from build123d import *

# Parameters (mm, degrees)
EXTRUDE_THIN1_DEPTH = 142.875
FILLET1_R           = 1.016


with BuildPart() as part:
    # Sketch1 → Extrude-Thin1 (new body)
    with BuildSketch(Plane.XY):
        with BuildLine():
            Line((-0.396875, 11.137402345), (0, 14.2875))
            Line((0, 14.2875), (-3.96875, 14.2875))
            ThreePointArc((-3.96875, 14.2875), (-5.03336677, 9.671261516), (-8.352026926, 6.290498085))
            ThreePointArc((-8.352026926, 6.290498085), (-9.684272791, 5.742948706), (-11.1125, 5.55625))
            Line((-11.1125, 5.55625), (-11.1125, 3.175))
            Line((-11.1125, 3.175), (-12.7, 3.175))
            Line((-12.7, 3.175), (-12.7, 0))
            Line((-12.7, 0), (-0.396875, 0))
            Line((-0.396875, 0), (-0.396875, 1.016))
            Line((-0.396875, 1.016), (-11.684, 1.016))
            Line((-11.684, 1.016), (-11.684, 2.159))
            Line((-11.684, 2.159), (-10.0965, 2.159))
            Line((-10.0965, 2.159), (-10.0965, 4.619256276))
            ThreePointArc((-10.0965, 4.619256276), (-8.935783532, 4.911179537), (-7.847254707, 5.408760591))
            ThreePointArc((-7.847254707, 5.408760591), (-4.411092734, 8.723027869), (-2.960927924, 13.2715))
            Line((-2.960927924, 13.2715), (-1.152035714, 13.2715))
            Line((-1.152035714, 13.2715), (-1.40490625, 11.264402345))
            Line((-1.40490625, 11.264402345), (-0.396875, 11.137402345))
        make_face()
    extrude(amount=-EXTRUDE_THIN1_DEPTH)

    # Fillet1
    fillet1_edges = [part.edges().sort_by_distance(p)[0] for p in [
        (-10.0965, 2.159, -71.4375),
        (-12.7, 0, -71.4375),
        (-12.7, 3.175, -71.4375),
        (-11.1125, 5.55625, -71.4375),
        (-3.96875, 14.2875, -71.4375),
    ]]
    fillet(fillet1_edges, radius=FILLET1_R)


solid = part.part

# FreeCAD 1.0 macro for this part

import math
import FreeCAD as App
import Part
import Sketcher
Q = App.Units.Quantity


def edges_at(feature, points):
    """Names of the edges that pass closest to the given points."""
    edges = feature.Shape.Edges
    near = lambda p: min(range(len(edges)), key=lambda i: edges[i].distToShape(Part.Vertex(*p))[0])
    return sorted({f"Edge{near(p) + 1}" for p in points})

doc = App.newDocument("Part")
body = doc.addObject("PartDesign::Body", "Body")

sketch1 = body.newObject("Sketcher::SketchObject", "Sketch")
sketch1.AttachmentSupport = (doc.getObject("XY_Plane"), [""])
sketch1.MapMode = "FlatFace"
sketch1.addGeometry([
    Part.LineSegment(App.Vector(-0.4, 11.1, 0), App.Vector(0, 14.3, 0)),
    Part.LineSegment(App.Vector(0, 14.3, 0), App.Vector(-4, 14.3, 0)),
    Part.ArcOfCircle(Part.Circle(App.Vector(-12.7, 13.9, 0), App.Vector(0, 0, 1), 8.7), math.radians(-60), math.radians(3)),
    Part.ArcOfCircle(Part.Circle(App.Vector(-11.1, 11.1, 0), App.Vector(0, 0, 1), 5.6), math.radians(-90), math.radians(-60)),
    Part.LineSegment(App.Vector(-11.1, 5.6, 0), App.Vector(-11.1, 3.2, 0)),
    Part.LineSegment(App.Vector(-11.1, 3.2, 0), App.Vector(-12.7, 3.2, 0)),
    Part.LineSegment(App.Vector(-12.7, 3.2, 0), App.Vector(-12.7, 0, 0)),
    Part.LineSegment(App.Vector(-12.7, 0, 0), App.Vector(-0.4, 0, 0)),
    Part.LineSegment(App.Vector(-0.4, 0, 0), App.Vector(-0.4, 1, 0)),
    Part.LineSegment(App.Vector(-0.4, 1, 0), App.Vector(-11.7, 1, 0)),
    Part.LineSegment(App.Vector(-11.7, 1, 0), App.Vector(-11.7, 2.2, 0)),
    Part.LineSegment(App.Vector(-11.7, 2.2, 0), App.Vector(-10.1, 2.2, 0)),
    Part.LineSegment(App.Vector(-10.1, 2.2, 0), App.Vector(-10.1, 4.6, 0)),
    Part.ArcOfCircle(Part.Circle(App.Vector(-11.1, 11.1, 0), App.Vector(0, 0, 1), 6.6), math.radians(-81), math.radians(-60)),
    Part.ArcOfCircle(Part.Circle(App.Vector(-12.7, 13.9, 0), App.Vector(0, 0, 1), 9.7), math.radians(-60), math.radians(-4)),
    Part.LineSegment(App.Vector(-3, 13.3, 0), App.Vector(-1.2, 13.3, 0)),
    Part.LineSegment(App.Vector(-1.2, 13.3, 0), App.Vector(-1.4, 11.3, 0)),
    Part.LineSegment(App.Vector(-1.4, 11.3, 0), App.Vector(-0.4, 11.1, 0)),
], False)
sketch1.addConstraint([
    Sketcher.Constraint("Coincident", 0, 2, 1, 1),
    Sketcher.Constraint("Coincident", 1, 2, 2, 2),
    Sketcher.Constraint("Tangent", 2, 1, 3, 2),
    Sketcher.Constraint("Coincident", 3, 1, 4, 1),
    Sketcher.Constraint("Coincident", 4, 2, 5, 1),
    Sketcher.Constraint("Coincident", 5, 2, 6, 1),
    Sketcher.Constraint("Coincident", 6, 2, 7, 1),
    Sketcher.Constraint("Coincident", 7, 2, 8, 1),
    Sketcher.Constraint("Coincident", 8, 2, 9, 1),
    Sketcher.Constraint("Coincident", 9, 2, 10, 1),
    Sketcher.Constraint("Coincident", 10, 2, 11, 1),
    Sketcher.Constraint("Coincident", 11, 2, 12, 1),
    Sketcher.Constraint("Coincident", 12, 2, 13, 1),
    Sketcher.Constraint("Tangent", 13, 2, 14, 1),
    Sketcher.Constraint("Coincident", 14, 2, 15, 1),
    Sketcher.Constraint("Coincident", 15, 2, 16, 1),
    Sketcher.Constraint("Coincident", 16, 2, 17, 1),
    Sketcher.Constraint("Coincident", 17, 2, 0, 1),
    Sketcher.Constraint("Horizontal", 1),
    Sketcher.Constraint("Vertical", 4),
    Sketcher.Constraint("Horizontal", 5),
    Sketcher.Constraint("Vertical", 6),
    Sketcher.Constraint("Horizontal", 7),
    Sketcher.Constraint("Vertical", 8),
    Sketcher.Constraint("Horizontal", 9),
    Sketcher.Constraint("Vertical", 10),
    Sketcher.Constraint("Horizontal", 11),
    Sketcher.Constraint("Vertical", 12),
    Sketcher.Constraint("Horizontal", 15),
    Sketcher.Constraint("Coincident", 13, 3, 3, 3),
    Sketcher.Constraint("Coincident", 14, 3, 2, 3),
    Sketcher.Constraint("PointOnObject", 0, 2, -2),
    Sketcher.Constraint("PointOnObject", 6, 2, -1),
    Sketcher.Constraint("Parallel", 0, 16),
    Sketcher.Constraint("Perpendicular", 16, 17),
    Sketcher.Constraint("Vertical", 13, 3, 3, 1),
    Sketcher.Constraint("Vertical", 8, 2, 17, 2),
    Sketcher.Constraint("Equal", 5, 11),
    Sketcher.Constraint("Radius", 2, Q("0.34375 in")),
    Sketcher.Constraint("Radius", 3, Q("0.21875 in")),
    Sketcher.Constraint("DistanceY", 8, 1, 8, 2, Q("0.04 in")),
    Sketcher.Constraint("DistanceX", 5, 2, -1, 1, Q("0.5 in")),
    Sketcher.Constraint("Distance", 17, Q("0.04 in")),
    Sketcher.Constraint("DistanceX", 1, 2, 1, 1, Q("0.15625 in")),
    Sketcher.Constraint("DistanceX", 5, 2, 5, 1, Q("0.0625 in")),
    Sketcher.Constraint("DistanceX", 7, 1, 7, 2, Q("0.484375 in")),
    Sketcher.Constraint("DistanceY", 4, 2, 4, 1, Q("0.09375 in")),
    Sketcher.Constraint("DistanceY", 6, 2, 6, 1, Q("0.125 in")),
    Sketcher.Constraint("DistanceY", 10, 1, 10, 2, Q("0.045 in")),
    Sketcher.Constraint("DistanceX", 9, 2, -1, 1, Q("0.46 in")),
    Sketcher.Constraint("DistanceY", 14, 2, 1, 2, Q("0.04 in")),
    Sketcher.Constraint("Distance", 0, Q("0.125 in")),
    Sketcher.Constraint("DistanceY", -1, 1, 0, 2, Q("0.5625 in")),
    Sketcher.Constraint("Radius", 13, 6.57225),
])
pad1 = body.newObject("PartDesign::Pad", "Pad")
pad1.Profile = sketch1
pad1.Length = Q("5.625 in")
pad1.Reversed = True
doc.recompute()

fillet = body.newObject("PartDesign::Fillet", "Fillet")
fillet.Base = (pad1, edges_at(pad1, [
    (-10.097, 2.159, -71.438),
    (-12.7, 0, -71.438),
    (-12.7, 3.175, -71.438),
    (-11.113, 5.556, -71.438),
    (-3.969, 14.287, -71.438),
]))
fillet.Radius = Q("0.04 in")

doc.recompute()
